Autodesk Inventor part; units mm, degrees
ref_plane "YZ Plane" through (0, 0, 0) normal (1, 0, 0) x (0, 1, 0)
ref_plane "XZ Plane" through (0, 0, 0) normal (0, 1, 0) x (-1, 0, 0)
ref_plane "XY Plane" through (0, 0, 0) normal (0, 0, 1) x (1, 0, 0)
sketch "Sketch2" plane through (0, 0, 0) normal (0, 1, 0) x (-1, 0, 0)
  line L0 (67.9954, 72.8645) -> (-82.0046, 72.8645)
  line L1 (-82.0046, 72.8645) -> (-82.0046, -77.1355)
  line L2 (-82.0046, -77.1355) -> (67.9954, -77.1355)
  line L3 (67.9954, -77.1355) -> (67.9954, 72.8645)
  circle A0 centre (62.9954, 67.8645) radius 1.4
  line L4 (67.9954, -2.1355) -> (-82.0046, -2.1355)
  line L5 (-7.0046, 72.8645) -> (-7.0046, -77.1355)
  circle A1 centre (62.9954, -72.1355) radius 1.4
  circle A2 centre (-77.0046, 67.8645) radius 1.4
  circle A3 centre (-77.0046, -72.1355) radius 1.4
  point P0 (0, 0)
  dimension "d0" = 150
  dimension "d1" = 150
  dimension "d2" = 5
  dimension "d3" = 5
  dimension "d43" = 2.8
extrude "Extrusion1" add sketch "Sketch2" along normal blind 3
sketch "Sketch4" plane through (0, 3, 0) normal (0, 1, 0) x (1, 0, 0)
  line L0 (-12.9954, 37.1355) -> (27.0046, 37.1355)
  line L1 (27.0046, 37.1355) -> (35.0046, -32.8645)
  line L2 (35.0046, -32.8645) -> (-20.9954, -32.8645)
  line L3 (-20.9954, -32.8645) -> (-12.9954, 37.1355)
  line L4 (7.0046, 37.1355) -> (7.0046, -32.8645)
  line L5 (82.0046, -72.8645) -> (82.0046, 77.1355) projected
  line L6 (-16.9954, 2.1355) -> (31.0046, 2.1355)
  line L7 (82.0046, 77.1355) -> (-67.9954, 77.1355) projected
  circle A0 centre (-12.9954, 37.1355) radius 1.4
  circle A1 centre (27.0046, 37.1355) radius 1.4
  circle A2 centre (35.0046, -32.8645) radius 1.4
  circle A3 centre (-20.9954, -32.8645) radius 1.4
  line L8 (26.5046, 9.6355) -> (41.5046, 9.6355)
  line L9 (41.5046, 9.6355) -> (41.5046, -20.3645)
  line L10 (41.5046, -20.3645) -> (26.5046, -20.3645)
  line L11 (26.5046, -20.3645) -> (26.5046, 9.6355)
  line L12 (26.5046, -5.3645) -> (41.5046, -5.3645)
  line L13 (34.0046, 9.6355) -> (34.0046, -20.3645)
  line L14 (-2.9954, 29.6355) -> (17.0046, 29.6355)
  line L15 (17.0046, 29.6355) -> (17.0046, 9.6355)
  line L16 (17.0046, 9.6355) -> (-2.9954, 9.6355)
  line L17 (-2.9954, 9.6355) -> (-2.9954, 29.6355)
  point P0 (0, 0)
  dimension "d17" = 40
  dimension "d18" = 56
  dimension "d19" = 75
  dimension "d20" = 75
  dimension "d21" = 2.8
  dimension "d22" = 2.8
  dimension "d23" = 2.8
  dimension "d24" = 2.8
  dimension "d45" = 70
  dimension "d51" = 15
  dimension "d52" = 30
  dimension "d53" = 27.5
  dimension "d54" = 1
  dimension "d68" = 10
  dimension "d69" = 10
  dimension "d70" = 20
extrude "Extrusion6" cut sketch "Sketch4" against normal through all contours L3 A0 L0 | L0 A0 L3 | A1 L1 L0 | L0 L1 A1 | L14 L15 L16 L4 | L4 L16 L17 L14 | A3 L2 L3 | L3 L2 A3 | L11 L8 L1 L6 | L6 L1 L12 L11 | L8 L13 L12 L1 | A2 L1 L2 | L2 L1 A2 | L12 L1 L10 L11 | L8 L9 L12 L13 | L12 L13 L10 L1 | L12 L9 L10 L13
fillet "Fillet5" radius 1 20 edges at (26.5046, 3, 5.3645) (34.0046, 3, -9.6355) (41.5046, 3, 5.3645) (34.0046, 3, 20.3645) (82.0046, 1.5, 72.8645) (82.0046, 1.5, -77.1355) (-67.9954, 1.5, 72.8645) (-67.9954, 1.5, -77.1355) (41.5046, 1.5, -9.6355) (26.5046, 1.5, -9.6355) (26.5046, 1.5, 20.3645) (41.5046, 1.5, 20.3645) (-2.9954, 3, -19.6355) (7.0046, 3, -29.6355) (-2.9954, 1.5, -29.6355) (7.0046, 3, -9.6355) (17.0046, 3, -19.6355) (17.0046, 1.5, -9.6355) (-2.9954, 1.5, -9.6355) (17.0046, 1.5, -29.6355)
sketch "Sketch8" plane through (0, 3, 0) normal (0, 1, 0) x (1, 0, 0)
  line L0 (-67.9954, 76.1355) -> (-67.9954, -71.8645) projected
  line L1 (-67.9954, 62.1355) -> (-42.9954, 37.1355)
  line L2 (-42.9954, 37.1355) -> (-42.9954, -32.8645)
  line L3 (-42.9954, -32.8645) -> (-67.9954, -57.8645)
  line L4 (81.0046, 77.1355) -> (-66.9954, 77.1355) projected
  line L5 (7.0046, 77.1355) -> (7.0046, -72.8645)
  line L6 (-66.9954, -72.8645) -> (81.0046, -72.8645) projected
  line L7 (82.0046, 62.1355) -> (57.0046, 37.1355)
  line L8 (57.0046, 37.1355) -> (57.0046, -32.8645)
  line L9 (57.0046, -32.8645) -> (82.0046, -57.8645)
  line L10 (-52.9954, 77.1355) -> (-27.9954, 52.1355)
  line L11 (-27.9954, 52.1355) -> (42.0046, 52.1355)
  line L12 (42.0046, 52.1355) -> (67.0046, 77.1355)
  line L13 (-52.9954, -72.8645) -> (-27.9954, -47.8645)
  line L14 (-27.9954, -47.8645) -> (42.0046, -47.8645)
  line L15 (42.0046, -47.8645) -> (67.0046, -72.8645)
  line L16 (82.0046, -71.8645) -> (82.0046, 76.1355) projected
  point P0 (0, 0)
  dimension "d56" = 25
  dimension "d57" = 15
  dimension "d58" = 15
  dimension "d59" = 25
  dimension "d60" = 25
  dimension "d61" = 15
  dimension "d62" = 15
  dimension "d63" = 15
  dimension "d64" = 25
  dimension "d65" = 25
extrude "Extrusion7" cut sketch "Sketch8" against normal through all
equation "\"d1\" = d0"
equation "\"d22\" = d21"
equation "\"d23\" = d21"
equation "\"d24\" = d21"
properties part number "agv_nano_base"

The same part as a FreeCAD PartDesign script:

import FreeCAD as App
import Part
import Sketcher

V = App.Vector


def edges_at(feature, points):
    """Names of the edges that pass closest to the given points."""
    edges = feature.Shape.Edges
    near = lambda p: min(range(len(edges)), key=lambda i: edges[i].distToShape(Part.Vertex(*p))[0])
    return sorted({f"Edge{near(p) + 1}" for p in points})

doc = App.newDocument("Part")
body = doc.addObject("PartDesign::Body", "Body")

# Sketch on XZ plane
sketch1 = doc.addObject("Sketcher::SketchObject", "Sketch")
body.addObject(sketch1)
sketch1.AttachmentSupport = (doc.XZ_Plane, [""])
sketch1.MapMode = "FlatFace"
sketch1.addGeometry([
    Part.LineSegment(V(-67.9954, 72.8645, 0), V(82.0046, 72.8645, 0)),  # 0
    Part.LineSegment(V(82.0046, 72.8645, 0), V(82.0046, -77.1355, 0)),  # 1
    Part.LineSegment(V(82.0046, -77.1355, 0), V(-67.9954, -77.1355, 0)),  # 2
    Part.LineSegment(V(-67.9954, -77.1355, 0), V(-67.9954, 72.8645, 0)),  # 3
    Part.Circle(V(-62.9954, 67.8645, 0), V(0, 0, 1), 1.4),  # 4
    Part.Circle(V(-62.9954, -72.1355, 0), V(0, 0, 1), 1.4),  # 5
    Part.Circle(V(77.0046, 67.8645, 0), V(0, 0, 1), 1.4),  # 6
    Part.Circle(V(77.0046, -72.1355, 0), V(0, 0, 1), 1.4),  # 7
], False)
sketch1.addConstraint([
    Sketcher.Constraint("Coincident", 0, 2, 1, 1),
    Sketcher.Constraint("Coincident", 1, 2, 2, 1),
    Sketcher.Constraint("Coincident", 2, 2, 3, 1),
    Sketcher.Constraint("Coincident", 3, 2, 0, 1),
    Sketcher.Constraint("Horizontal", 0),
    Sketcher.Constraint("Vertical", 1),
    Sketcher.Constraint("Horizontal", 2),
    Sketcher.Constraint("Vertical", 3),
    Sketcher.Constraint("Equal", 4, 5),
    Sketcher.Constraint("Equal", 5, 6),
    Sketcher.Constraint("Equal", 6, 7),
    Sketcher.Constraint("Horizontal", 4, 3, 6, 3),
    Sketcher.Constraint("Horizontal", 5, 3, 7, 3),
    Sketcher.Constraint("Vertical", 4, 3, 5, 3),
    Sketcher.Constraint("Vertical", 6, 3, 7, 3),
    Sketcher.Constraint("Equal", 2, 1),
    Sketcher.Constraint("Diameter", 4, 2.8),
    Sketcher.Constraint("DistanceX", 0, 1, 0, 2, 150.0),
    Sketcher.Constraint("DistanceX", 6, 3, 0, 2, 5.0),
    Sketcher.Constraint("DistanceY", 6, 3, 0, 2, 5.0),
    Sketcher.Constraint("DistanceY", 1, 2, 7, 3, 5.0),
    Sketcher.Constraint("DistanceX", 2, 2, 5, 3, 5.0),
    Sketcher.Constraint("DistanceX", 4, 3, -1, 1, 62.9954),
    Sketcher.Constraint("DistanceY", -1, 1, 4, 3, 67.8645),
])
pad1 = doc.addObject("PartDesign::Pad", "Pad")
body.addObject(pad1)
pad1.Profile = sketch1
pad1.Length = 3
pad1.Reversed = True

# Sketch on XZ plane
sketch2 = doc.addObject("Sketcher::SketchObject", "Sketch001")
body.addObject(sketch2)
sketch2.AttachmentSupport = (doc.XZ_Plane, [""])
sketch2.MapMode = "FlatFace"
sketch2.AttachmentOffset = App.Placement(V(0, 0, -3), App.Rotation())
sketch2.addGeometry([
    Part.Circle(V(-12.9954, -37.1355, 0), V(0, 0, 1), 1.4),  # 0
    Part.Circle(V(27.0046, -37.1355, 0), V(0, 0, 1), 1.4),  # 1
    Part.LineSegment(V(17.0046, -29.6355, 0), V(-2.9954, -29.6355, 0)),  # 2
    Part.LineSegment(V(-2.9954, -29.6355, 0), V(-2.9954, -9.6355, 0)),  # 3
    Part.LineSegment(V(-2.9954, -9.6355, 0), V(17.0046, -9.6355, 0)),  # 4
    Part.LineSegment(V(17.0046, -9.6355, 0), V(17.0046, -29.6355, 0)),  # 5
    Part.Circle(V(-20.9954, 32.8645, 0), V(0, 0, 1), 1.4),  # 6
    Part.LineSegment(V(26.5046, -9.6355, 0), V(26.5046, 20.3645, 0)),  # 7
    Part.LineSegment(V(26.5046, 20.3645, 0), V(41.5046, 20.3645, 0)),  # 8
    Part.LineSegment(V(41.5046, 20.3645, 0), V(41.5046, -9.6355, 0)),  # 9
    Part.LineSegment(V(41.5046, -9.6355, 0), V(26.5046, -9.6355, 0)),  # 10
    Part.Circle(V(35.0046, 32.8645, 0), V(0, 0, 1), 1.4),  # 11
], False)
sketch2.addConstraint([
    Sketcher.Constraint("Coincident", 2, 2, 3, 1),
    Sketcher.Constraint("Coincident", 3, 2, 4, 1),
    Sketcher.Constraint("Coincident", 4, 2, 5, 1),
    Sketcher.Constraint("Coincident", 5, 2, 2, 1),
    Sketcher.Constraint("Coincident", 7, 2, 8, 1),
    Sketcher.Constraint("Coincident", 8, 2, 9, 1),
    Sketcher.Constraint("Coincident", 9, 2, 10, 1),
    Sketcher.Constraint("Coincident", 10, 2, 7, 1),
    Sketcher.Constraint("Horizontal", 2),
    Sketcher.Constraint("Vertical", 3),
    Sketcher.Constraint("Horizontal", 4),
    Sketcher.Constraint("Vertical", 5),
    Sketcher.Constraint("Vertical", 7),
    Sketcher.Constraint("Horizontal", 8),
    Sketcher.Constraint("Vertical", 9),
    Sketcher.Constraint("Horizontal", 10),
    Sketcher.Constraint("Equal", 0, 1),
    Sketcher.Constraint("Equal", 1, 6),
    Sketcher.Constraint("Equal", 6, 11),
    Sketcher.Constraint("Horizontal", 0, 3, 1, 3),
    Sketcher.Constraint("Horizontal", 6, 3, 11, 3),
    Sketcher.Constraint("Horizontal", 4, 2, 9, 2),
    Sketcher.Constraint("Equal", 4, 3),
    Sketcher.Constraint("Diameter", 0, 2.8),
    Sketcher.Constraint("DistanceX", 2, 2, 2, 1, 20.0),
    Sketcher.Constraint("DistanceX", 8, 1, 8, 2, 15.0),
    Sketcher.Constraint("DistanceY", 7, 1, 7, 2, 30.0),
    Sketcher.Constraint("DistanceX", 0, 3, 1, 3, 40.0),
    Sketcher.Constraint("DistanceY", 0, 3, 6, 3, 70.0),
    Sketcher.Constraint("DistanceX", 6, 3, 11, 3, 56.0),
    Sketcher.Constraint("DistanceX", 0, 3, 2, 2, 10.0),
    Sketcher.Constraint("DistanceY", 0, 3, 3, 2, 27.5),
    Sketcher.Constraint("DistanceX", 6, 3, 0, 3, 8.0),
    Sketcher.Constraint("DistanceX", 7, 2, 11, 3, 8.5),
    Sketcher.Constraint("DistanceX", 0, 3, -1, 1, 12.9954),
    Sketcher.Constraint("DistanceY", 0, 3, -1, 1, 37.1355),
])
pocket1 = doc.addObject("PartDesign::Pocket", "Pocket")
body.addObject(pocket1)
pocket1.Profile = sketch2
pocket1.Type = "ThroughAll"
pocket1.Reversed = True
doc.recompute()

fillet = doc.addObject("PartDesign::Fillet", "Fillet")
body.addObject(fillet)
fillet.Base = (pocket1, edges_at(pocket1, [
    (26.505, 3, 5.364),
    (34.005, 3, -9.636),
    (41.505, 3, 5.364),
    (34.005, 3, 20.364),
    (82.005, 1.5, 72.865),
    (82.005, 1.5, -77.135),
    (-67.995, 1.5, 72.865),
    (-67.995, 1.5, -77.135),
    (41.505, 1.5, -9.636),
    (26.505, 1.5, -9.636),
    (26.505, 1.5, 20.364),
    (41.505, 1.5, 20.364),
    (-2.995, 3, -19.636),
    (7.005, 3, -29.636),
    (-2.995, 1.5, -29.636),
    (7.005, 3, -9.636),
    (17.005, 3, -19.636),
    (17.005, 1.5, -9.636),
    (-2.995, 1.5, -9.636),
    (17.005, 1.5, -29.636),
]))
fillet.Radius = 1

# Sketch on XZ plane
sketch3 = doc.addObject("Sketcher::SketchObject", "Sketch002")
body.addObject(sketch3)
sketch3.AttachmentSupport = (doc.XZ_Plane, [""])
sketch3.MapMode = "FlatFace"
sketch3.AttachmentOffset = App.Placement(V(0, 0, -3), App.Rotation())
sketch3.addGeometry([
    Part.LineSegment(V(-42.9954, -37.1355, 0), V(-67.9954, -62.1355, 0)),  # 0
    Part.LineSegment(V(-67.9954, -62.1355, 0), V(-67.9954, 57.8645, 0)),  # 1
    Part.LineSegment(V(-67.9954, 57.8645, 0), V(-42.9954, 32.8645, 0)),  # 2
    Part.LineSegment(V(-42.9954, 32.8645, 0), V(-42.9954, -37.1355, 0)),  # 3
    Part.LineSegment(V(42.0046, -52.1355, 0), V(67.0046, -77.1355, 0)),  # 4
    Part.LineSegment(V(67.0046, -77.1355, 0), V(-52.9954, -77.1355, 0)),  # 5
    Part.LineSegment(V(-52.9954, -77.1355, 0), V(-27.9954, -52.1355, 0)),  # 6
    Part.LineSegment(V(-27.9954, -52.1355, 0), V(42.0046, -52.1355, 0)),  # 7
    Part.LineSegment(V(42.0046, 47.8645, 0), V(-27.9954, 47.8645, 0)),  # 8
    Part.LineSegment(V(-27.9954, 47.8645, 0), V(-52.9954, 72.8645, 0)),  # 9
    Part.LineSegment(V(-52.9954, 72.8645, 0), V(67.0046, 72.8645, 0)),  # 10
    Part.LineSegment(V(67.0046, 72.8645, 0), V(42.0046, 47.8645, 0)),  # 11
    Part.LineSegment(V(82.0046, 57.8645, 0), V(82.0046, -62.1355, 0)),  # 12
    Part.LineSegment(V(82.0046, -62.1355, 0), V(57.0046, -37.1355, 0)),  # 13
    Part.LineSegment(V(57.0046, -37.1355, 0), V(57.0046, 32.8645, 0)),  # 14
    Part.LineSegment(V(57.0046, 32.8645, 0), V(82.0046, 57.8645, 0)),  # 15
], False)
sketch3.addConstraint([
    Sketcher.Constraint("Coincident", 0, 2, 1, 1),
    Sketcher.Constraint("Coincident", 1, 2, 2, 1),
    Sketcher.Constraint("Coincident", 2, 2, 3, 1),
    Sketcher.Constraint("Coincident", 3, 2, 0, 1),
    Sketcher.Constraint("Coincident", 4, 2, 5, 1),
    Sketcher.Constraint("Coincident", 5, 2, 6, 1),
    Sketcher.Constraint("Coincident", 6, 2, 7, 1),
    Sketcher.Constraint("Coincident", 7, 2, 4, 1),
    Sketcher.Constraint("Coincident", 8, 2, 9, 1),
    Sketcher.Constraint("Coincident", 9, 2, 10, 1),
    Sketcher.Constraint("Coincident", 10, 2, 11, 1),
    Sketcher.Constraint("Coincident", 11, 2, 8, 1),
    Sketcher.Constraint("Coincident", 12, 2, 13, 1),
    Sketcher.Constraint("Coincident", 13, 2, 14, 1),
    Sketcher.Constraint("Coincident", 14, 2, 15, 1),
    Sketcher.Constraint("Coincident", 15, 2, 12, 1),
    Sketcher.Constraint("Vertical", 1),
    Sketcher.Constraint("Vertical", 3),
    Sketcher.Constraint("Horizontal", 5),
    Sketcher.Constraint("Horizontal", 7),
    Sketcher.Constraint("Horizontal", 8),
    Sketcher.Constraint("Horizontal", 10),
    Sketcher.Constraint("Vertical", 12),
    Sketcher.Constraint("Vertical", 14),
    Sketcher.Constraint("Perpendicular", 0, 2),
    Sketcher.Constraint("Parallel", 2, 4),
    Sketcher.Constraint("Perpendicular", 4, 6),
    Sketcher.Constraint("Perpendicular", 6, 9),
    Sketcher.Constraint("Perpendicular", 9, 11),
    Sketcher.Constraint("Perpendicular", 11, 13),
    Sketcher.Constraint("Perpendicular", 13, 15),
    Sketcher.Constraint("Horizontal", 0, 2, 12, 2),
    Sketcher.Constraint("Horizontal", 3, 2, 13, 2),
    Sketcher.Constraint("Horizontal", 2, 2, 14, 2),
    Sketcher.Constraint("Horizontal", 1, 2, 15, 2),
    Sketcher.Constraint("Vertical", 6, 2, 8, 2),
    Sketcher.Constraint("Vertical", 5, 2, 9, 2),
    Sketcher.Constraint("Vertical", 4, 2, 10, 2),
    Sketcher.Constraint("Equal", 10, 1),
    Sketcher.Constraint("Equal", 8, 3),
    Sketcher.Constraint("DistanceX", 1, 2, 2, 2, 25.0),
    Sketcher.Constraint("DistanceY", 4, 2, 0, 2, 15.0),
    Sketcher.Constraint("DistanceX", 0, 2, 5, 2, 15.0),
    Sketcher.Constraint("DistanceY", 2, 2, 8, 2, 15.0),
    Sketcher.Constraint("DistanceX", 4, 2, 12, 2, 15.0),
    Sketcher.Constraint("DistanceX", 5, 2, 5, 1, 120.0),
    Sketcher.Constraint("DistanceX", 0, 2, -1, 1, 67.9954),
    Sketcher.Constraint("DistanceY", 0, 2, -1, 1, 62.1355),
])
pocket2 = doc.addObject("PartDesign::Pocket", "Pocket001")
body.addObject(pocket2)
pocket2.Profile = sketch3
pocket2.Type = "ThroughAll"
pocket2.Reversed = True

doc.recompute()
